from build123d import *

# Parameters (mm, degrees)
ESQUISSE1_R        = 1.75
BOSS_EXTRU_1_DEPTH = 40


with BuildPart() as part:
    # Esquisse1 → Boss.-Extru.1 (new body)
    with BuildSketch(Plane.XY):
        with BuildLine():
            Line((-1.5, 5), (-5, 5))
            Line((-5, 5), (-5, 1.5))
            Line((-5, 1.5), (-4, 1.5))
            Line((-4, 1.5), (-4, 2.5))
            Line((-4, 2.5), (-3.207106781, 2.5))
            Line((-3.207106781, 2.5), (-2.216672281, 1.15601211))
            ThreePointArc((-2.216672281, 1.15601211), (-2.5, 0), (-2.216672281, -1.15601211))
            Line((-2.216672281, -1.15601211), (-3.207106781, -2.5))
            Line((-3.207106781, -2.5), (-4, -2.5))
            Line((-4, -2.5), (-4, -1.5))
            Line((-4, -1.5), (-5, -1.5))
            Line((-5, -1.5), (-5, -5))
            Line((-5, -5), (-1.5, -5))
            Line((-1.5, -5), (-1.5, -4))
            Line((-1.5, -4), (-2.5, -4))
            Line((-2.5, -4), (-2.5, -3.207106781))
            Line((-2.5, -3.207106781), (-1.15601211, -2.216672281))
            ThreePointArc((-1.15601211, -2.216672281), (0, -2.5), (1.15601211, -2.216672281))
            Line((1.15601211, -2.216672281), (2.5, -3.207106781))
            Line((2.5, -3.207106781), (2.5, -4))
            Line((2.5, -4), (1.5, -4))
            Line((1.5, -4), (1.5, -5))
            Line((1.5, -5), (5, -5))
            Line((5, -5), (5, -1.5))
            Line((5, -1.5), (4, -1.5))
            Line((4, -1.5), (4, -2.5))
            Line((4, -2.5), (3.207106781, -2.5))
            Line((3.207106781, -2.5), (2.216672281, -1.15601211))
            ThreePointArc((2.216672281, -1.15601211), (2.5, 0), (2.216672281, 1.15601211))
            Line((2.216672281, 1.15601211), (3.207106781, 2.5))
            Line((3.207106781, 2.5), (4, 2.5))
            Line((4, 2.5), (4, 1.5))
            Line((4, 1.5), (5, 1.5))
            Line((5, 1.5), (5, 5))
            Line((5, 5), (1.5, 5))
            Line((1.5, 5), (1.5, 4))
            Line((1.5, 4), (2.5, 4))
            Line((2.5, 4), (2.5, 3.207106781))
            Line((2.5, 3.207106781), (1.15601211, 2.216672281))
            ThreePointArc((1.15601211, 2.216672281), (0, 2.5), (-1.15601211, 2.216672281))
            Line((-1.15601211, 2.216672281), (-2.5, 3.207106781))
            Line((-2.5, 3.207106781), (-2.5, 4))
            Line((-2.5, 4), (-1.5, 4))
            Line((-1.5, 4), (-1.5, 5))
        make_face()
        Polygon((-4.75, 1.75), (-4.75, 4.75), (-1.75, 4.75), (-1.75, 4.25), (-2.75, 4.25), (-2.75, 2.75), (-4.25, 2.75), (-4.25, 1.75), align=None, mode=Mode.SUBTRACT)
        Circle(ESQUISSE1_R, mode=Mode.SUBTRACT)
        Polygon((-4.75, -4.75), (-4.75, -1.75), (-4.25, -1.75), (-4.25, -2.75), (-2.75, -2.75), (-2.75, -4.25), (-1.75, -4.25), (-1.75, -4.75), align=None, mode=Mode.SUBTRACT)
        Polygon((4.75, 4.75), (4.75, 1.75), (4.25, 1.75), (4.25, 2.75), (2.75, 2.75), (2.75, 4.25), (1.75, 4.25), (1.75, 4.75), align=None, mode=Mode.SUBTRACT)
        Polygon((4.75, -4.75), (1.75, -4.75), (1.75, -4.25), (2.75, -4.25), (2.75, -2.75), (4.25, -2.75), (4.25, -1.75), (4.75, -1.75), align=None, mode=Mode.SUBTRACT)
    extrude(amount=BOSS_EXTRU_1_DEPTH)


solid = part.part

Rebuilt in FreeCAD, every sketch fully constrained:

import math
import FreeCAD as App
import Part
import Sketcher

V = App.Vector


def add_polygon(sketch, points):
    """Adds a closed chain of lines whose ends are joined by coincident constraints."""
    first, n = sketch.GeometryCount, len(points)
    for a, b in zip(points, points[1:] + points[:1]):
        sketch.addGeometry(Part.LineSegment(App.Vector(*a, 0), App.Vector(*b, 0)), False)
    for i in range(n):
        sketch.addConstraint(Sketcher.Constraint("Coincident", first + i, 2, first + (i + 1) % n, 1))

doc = App.newDocument("Part")
body = doc.addObject("PartDesign::Body", "Body")

# Sketch on XY plane
sketch1 = body.newObject("Sketcher::SketchObject", "Sketch")
sketch1.AttachmentSupport = (doc.getObject("XY_Plane"), [""])
sketch1.MapMode = "FlatFace"
sketch1.addGeometry(Part.LineSegment(V(-1.5, 5, 0), V(-5, 5, 0)), False)  # 0
sketch1.addGeometry(Part.LineSegment(V(-5, 5, 0), V(-5, 1.5, 0)), False)  # 1
sketch1.addGeometry(Part.LineSegment(V(-5, 1.5, 0), V(-4, 1.5, 0)), False)  # 2
sketch1.addGeometry(Part.LineSegment(V(-4, 1.5, 0), V(-4, 2.5, 0)), False)  # 3
sketch1.addGeometry(Part.LineSegment(V(-4, 2.5, 0), V(-3.2, 2.5, 0)), False)  # 4
sketch1.addGeometry(Part.LineSegment(V(-3.2, 2.5, 0), V(-2.2, 1.2, 0)), False)  # 5
sketch1.addGeometry(Part.ArcOfCircle(Part.Circle(V(0, 0, 0), V(0, 0, 1), 2.5), math.radians(152), math.radians(208)), False)  # 6
sketch1.addGeometry(Part.LineSegment(V(-2.2, -1.2, 0), V(-3.2, -2.5, 0)), False)  # 7
sketch1.addGeometry(Part.LineSegment(V(-3.2, -2.5, 0), V(-4, -2.5, 0)), False)  # 8
sketch1.addGeometry(Part.LineSegment(V(-4, -2.5, 0), V(-4, -1.5, 0)), False)  # 9
sketch1.addGeometry(Part.LineSegment(V(-4, -1.5, 0), V(-5, -1.5, 0)), False)  # 10
sketch1.addGeometry(Part.LineSegment(V(-5, -1.5, 0), V(-5, -5, 0)), False)  # 11
sketch1.addGeometry(Part.LineSegment(V(-5, -5, 0), V(-1.5, -5, 0)), False)  # 12
sketch1.addGeometry(Part.LineSegment(V(-1.5, -5, 0), V(-1.5, -4, 0)), False)  # 13
sketch1.addGeometry(Part.LineSegment(V(-1.5, -4, 0), V(-2.5, -4, 0)), False)  # 14
sketch1.addGeometry(Part.LineSegment(V(-2.5, -4, 0), V(-2.5, -3.2, 0)), False)  # 15
sketch1.addGeometry(Part.LineSegment(V(-2.5, -3.2, 0), V(-1.2, -2.2, 0)), False)  # 16
sketch1.addGeometry(Part.ArcOfCircle(Part.Circle(V(0, 0, 0), V(0, 0, 1), 2.5), math.radians(-118), math.radians(-62)), False)  # 17
sketch1.addGeometry(Part.LineSegment(V(1.2, -2.2, 0), V(2.5, -3.2, 0)), False)  # 18
sketch1.addGeometry(Part.LineSegment(V(2.5, -3.2, 0), V(2.5, -4, 0)), False)  # 19
sketch1.addGeometry(Part.LineSegment(V(2.5, -4, 0), V(1.5, -4, 0)), False)  # 20
sketch1.addGeometry(Part.LineSegment(V(1.5, -4, 0), V(1.5, -5, 0)), False)  # 21
sketch1.addGeometry(Part.LineSegment(V(1.5, -5, 0), V(5, -5, 0)), False)  # 22
sketch1.addGeometry(Part.LineSegment(V(5, -5, 0), V(5, -1.5, 0)), False)  # 23
sketch1.addGeometry(Part.LineSegment(V(5, -1.5, 0), V(4, -1.5, 0)), False)  # 24
sketch1.addGeometry(Part.LineSegment(V(4, -1.5, 0), V(4, -2.5, 0)), False)  # 25
sketch1.addGeometry(Part.LineSegment(V(4, -2.5, 0), V(3.2, -2.5, 0)), False)  # 26
sketch1.addGeometry(Part.LineSegment(V(3.2, -2.5, 0), V(2.2, -1.2, 0)), False)  # 27
sketch1.addGeometry(Part.ArcOfCircle(Part.Circle(V(0, 0, 0), V(0, 0, 1), 2.5), math.radians(-28), math.radians(28)), False)  # 28
sketch1.addGeometry(Part.LineSegment(V(2.2, 1.2, 0), V(3.2, 2.5, 0)), False)  # 29
sketch1.addGeometry(Part.LineSegment(V(3.2, 2.5, 0), V(4, 2.5, 0)), False)  # 30
sketch1.addGeometry(Part.LineSegment(V(4, 2.5, 0), V(4, 1.5, 0)), False)  # 31
sketch1.addGeometry(Part.LineSegment(V(4, 1.5, 0), V(5, 1.5, 0)), False)  # 32
sketch1.addGeometry(Part.LineSegment(V(5, 1.5, 0), V(5, 5, 0)), False)  # 33
sketch1.addGeometry(Part.LineSegment(V(5, 5, 0), V(1.5, 5, 0)), False)  # 34
sketch1.addGeometry(Part.LineSegment(V(1.5, 5, 0), V(1.5, 4, 0)), False)  # 35
sketch1.addGeometry(Part.LineSegment(V(1.5, 4, 0), V(2.5, 4, 0)), False)  # 36
sketch1.addGeometry(Part.LineSegment(V(2.5, 4, 0), V(2.5, 3.2, 0)), False)  # 37
sketch1.addGeometry(Part.LineSegment(V(2.5, 3.2, 0), V(1.2, 2.2, 0)), False)  # 38
sketch1.addGeometry(Part.ArcOfCircle(Part.Circle(V(0, 0, 0), V(0, 0, 1), 2.5), math.radians(62), math.radians(118)), False)  # 39
sketch1.addGeometry(Part.LineSegment(V(-1.2, 2.2, 0), V(-2.5, 3.2, 0)), False)  # 40
sketch1.addGeometry(Part.LineSegment(V(-2.5, 3.2, 0), V(-2.5, 4, 0)), False)  # 41
sketch1.addGeometry(Part.LineSegment(V(-2.5, 4, 0), V(-1.5, 4, 0)), False)  # 42
sketch1.addGeometry(Part.LineSegment(V(-1.5, 4, 0), V(-1.5, 5, 0)), False)  # 43
add_polygon(sketch1, [(-1.8, -4.8), (-4.8, -4.8), (-4.8, -1.8), (-4.2, -1.8), (-4.2, -2.8), (-2.8, -2.8), (-2.8, -4.2), (-1.8, -4.2)])  # lines 44-51
add_polygon(sketch1, [(4.8, -1.8), (4.8, -4.8), (1.8, -4.8), (1.8, -4.2), (2.8, -4.2), (2.8, -2.8), (4.2, -2.8), (4.2, -1.8)])  # lines 52-59
add_polygon(sketch1, [(-4.2, 1.8), (-4.8, 1.8), (-4.8, 4.8), (-1.8, 4.8), (-1.8, 4.2), (-2.8, 4.2), (-2.8, 2.8), (-4.2, 2.8)])  # lines 60-67
sketch1.addGeometry(Part.Circle(V(0, 0, 0), V(0, 0, 1), 1.8), False)  # 68
add_polygon(sketch1, [(1.8, 4.8), (4.8, 4.8), (4.8, 1.8), (4.2, 1.8), (4.2, 2.8), (2.8, 2.8), (2.8, 4.2), (1.8, 4.2)])  # lines 69-76
sketch1.addConstraint([
    Sketcher.Constraint("Coincident", 0, 2, 1, 1),
    Sketcher.Constraint("Coincident", 1, 2, 2, 1),
    Sketcher.Constraint("Coincident", 2, 2, 3, 1),
    Sketcher.Constraint("Coincident", 3, 2, 4, 1),
    Sketcher.Constraint("Coincident", 4, 2, 5, 1),
    Sketcher.Constraint("Coincident", 5, 2, 6, 1),
    Sketcher.Constraint("Coincident", 6, 2, 7, 1),
    Sketcher.Constraint("Coincident", 7, 2, 8, 1),
    Sketcher.Constraint("Coincident", 8, 2, 9, 1),
    Sketcher.Constraint("Coincident", 9, 2, 10, 1),
    Sketcher.Constraint("Coincident", 10, 2, 11, 1),
    Sketcher.Constraint("Coincident", 11, 2, 12, 1),
    Sketcher.Constraint("Coincident", 12, 2, 13, 1),
    Sketcher.Constraint("Coincident", 13, 2, 14, 1),
    Sketcher.Constraint("Coincident", 14, 2, 15, 1),
    Sketcher.Constraint("Coincident", 15, 2, 16, 1),
    Sketcher.Constraint("Coincident", 16, 2, 17, 1),
    Sketcher.Constraint("Coincident", 17, 2, 18, 1),
    Sketcher.Constraint("Coincident", 18, 2, 19, 1),
    Sketcher.Constraint("Coincident", 19, 2, 20, 1),
    Sketcher.Constraint("Coincident", 20, 2, 21, 1),
    Sketcher.Constraint("Coincident", 21, 2, 22, 1),
    Sketcher.Constraint("Coincident", 22, 2, 23, 1),
    Sketcher.Constraint("Coincident", 23, 2, 24, 1),
    Sketcher.Constraint("Coincident", 24, 2, 25, 1),
    Sketcher.Constraint("Coincident", 25, 2, 26, 1),
    Sketcher.Constraint("Coincident", 26, 2, 27, 1),
    Sketcher.Constraint("Coincident", 27, 2, 28, 1),
    Sketcher.Constraint("Coincident", 28, 2, 29, 1),
    Sketcher.Constraint("Coincident", 29, 2, 30, 1),
    Sketcher.Constraint("Coincident", 30, 2, 31, 1),
    Sketcher.Constraint("Coincident", 31, 2, 32, 1),
    Sketcher.Constraint("Coincident", 32, 2, 33, 1),
    Sketcher.Constraint("Coincident", 33, 2, 34, 1),
    Sketcher.Constraint("Coincident", 34, 2, 35, 1),
    Sketcher.Constraint("Coincident", 35, 2, 36, 1),
    Sketcher.Constraint("Coincident", 36, 2, 37, 1),
    Sketcher.Constraint("Coincident", 37, 2, 38, 1),
    Sketcher.Constraint("Coincident", 38, 2, 39, 1),
    Sketcher.Constraint("Coincident", 39, 2, 40, 1),
    Sketcher.Constraint("Coincident", 40, 2, 41, 1),
    Sketcher.Constraint("Coincident", 41, 2, 42, 1),
    Sketcher.Constraint("Coincident", 42, 2, 43, 1),
    Sketcher.Constraint("Coincident", 43, 2, 0, 1),
    Sketcher.Constraint("Horizontal", 0),
    Sketcher.Constraint("Vertical", 1),
    Sketcher.Constraint("Horizontal", 2),
    Sketcher.Constraint("Vertical", 3),
    Sketcher.Constraint("Horizontal", 4),
    Sketcher.Constraint("Horizontal", 8),
    Sketcher.Constraint("Vertical", 9),
    Sketcher.Constraint("Horizontal", 10),
    Sketcher.Constraint("Vertical", 11),
    Sketcher.Constraint("Horizontal", 12),
    Sketcher.Constraint("Vertical", 13),
    Sketcher.Constraint("Horizontal", 14),
    Sketcher.Constraint("Vertical", 15),
    Sketcher.Constraint("Vertical", 19),
    Sketcher.Constraint("Horizontal", 20),
    Sketcher.Constraint("Vertical", 21),
    Sketcher.Constraint("Horizontal", 22),
    Sketcher.Constraint("Vertical", 23),
    Sketcher.Constraint("Horizontal", 24),
    Sketcher.Constraint("Vertical", 25),
    Sketcher.Constraint("Horizontal", 26),
    Sketcher.Constraint("Horizontal", 30),
    Sketcher.Constraint("Vertical", 31),
    Sketcher.Constraint("Horizontal", 32),
    Sketcher.Constraint("Vertical", 33),
    Sketcher.Constraint("Horizontal", 34),
    Sketcher.Constraint("Vertical", 35),
    Sketcher.Constraint("Horizontal", 36),
    Sketcher.Constraint("Vertical", 37),
    Sketcher.Constraint("Vertical", 41),
    Sketcher.Constraint("Horizontal", 42),
    Sketcher.Constraint("Vertical", 43),
    Sketcher.Constraint("Horizontal", 44),
    Sketcher.Constraint("Vertical", 45),
    Sketcher.Constraint("Horizontal", 46),
    Sketcher.Constraint("Vertical", 47),
    Sketcher.Constraint("Horizontal", 48),
    Sketcher.Constraint("Vertical", 49),
    Sketcher.Constraint("Horizontal", 50),
    Sketcher.Constraint("Vertical", 51),
    Sketcher.Constraint("Vertical", 52),
    Sketcher.Constraint("Horizontal", 53),
    Sketcher.Constraint("Vertical", 54),
    Sketcher.Constraint("Horizontal", 55),
    Sketcher.Constraint("Vertical", 56),
    Sketcher.Constraint("Horizontal", 57),
    Sketcher.Constraint("Vertical", 58),
    Sketcher.Constraint("Horizontal", 59),
    Sketcher.Constraint("Horizontal", 60),
    Sketcher.Constraint("Vertical", 61),
    Sketcher.Constraint("Horizontal", 62),
    Sketcher.Constraint("Vertical", 63),
    Sketcher.Constraint("Horizontal", 64),
    Sketcher.Constraint("Vertical", 65),
    Sketcher.Constraint("Horizontal", 66),
    Sketcher.Constraint("Vertical", 67),
    Sketcher.Constraint("Horizontal", 69),
    Sketcher.Constraint("Vertical", 70),
    Sketcher.Constraint("Horizontal", 71),
    Sketcher.Constraint("Vertical", 72),
    Sketcher.Constraint("Horizontal", 73),
    Sketcher.Constraint("Vertical", 74),
    Sketcher.Constraint("Horizontal", 75),
    Sketcher.Constraint("Vertical", 76),
    Sketcher.Constraint("Coincident", 6, 3, -1, 1),
    Sketcher.Constraint("Coincident", 17, 3, -1, 1),
    Sketcher.Constraint("Coincident", 28, 3, -1, 1),
    Sketcher.Constraint("Coincident", 39, 3, -1, 1),
    Sketcher.Constraint("Coincident", 68, 3, -1, 1),
    Sketcher.Constraint("Equal", 6, 17),
    Sketcher.Constraint("Equal", 17, 28),
    Sketcher.Constraint("Equal", 28, 39),
    Sketcher.Constraint("Symmetric", 0, 2, 22, 2, -1, 1),
    Sketcher.Constraint("Symmetric", 2, 2, 24, 2, -1, 1),
    Sketcher.Constraint("Symmetric", 4, 2, 26, 2, -1, 1),
    Sketcher.Constraint("Symmetric", 7, 2, 29, 2, -1, 1),
    Sketcher.Constraint("Symmetric", 9, 2, 31, 2, -1, 1),
    Sketcher.Constraint("Symmetric", 11, 2, 33, 2, -1, 1),
    Sketcher.Constraint("Symmetric", 13, 2, 35, 2, -1, 1),
    Sketcher.Constraint("Symmetric", 15, 2, 37, 2, -1, 1),
    Sketcher.Constraint("Symmetric", 18, 2, 40, 2, -1, 1),
    Sketcher.Constraint("Symmetric", 20, 2, 42, 2, -1, 1),
    Sketcher.Constraint("Symmetric", 59, 2, 60, 2, -1, 1),
    Sketcher.Constraint("Symmetric", 53, 2, 62, 2, -1, 1),
    Sketcher.Constraint("Symmetric", 55, 2, 64, 2, -1, 1),
    Sketcher.Constraint("Symmetric", 57, 2, 66, 2, -1, 1),
    Sketcher.Constraint("Symmetric", 44, 2, 69, 2, -1, 1),
    Sketcher.Constraint("Symmetric", 46, 2, 71, 2, -1, 1),
    Sketcher.Constraint("Symmetric", 48, 2, 73, 2, -1, 1),
    Sketcher.Constraint("Symmetric", 50, 2, 75, 2, -1, 1),
    Sketcher.Constraint("Symmetric", 15, 2, 18, 2, -2),
    Sketcher.Constraint("Symmetric", 13, 2, 20, 2, -2),
    Sketcher.Constraint("Symmetric", 11, 2, 22, 2, -2),
    Sketcher.Constraint("Symmetric", 9, 2, 24, 2, -2),
    Sketcher.Constraint("Symmetric", 7, 2, 26, 2, -2),
    Sketcher.Constraint("Symmetric", 44, 2, 52, 2, -2),
    Sketcher.Constraint("Symmetric", 50, 2, 54, 2, -2),
    Sketcher.Constraint("Symmetric", 48, 2, 56, 2, -2),
    Sketcher.Constraint("Symmetric", 46, 2, 58, 2, -2),
    Sketcher.Constraint("Perpendicular", 5, 16),
    Sketcher.Constraint("Perpendicular", 7, 18),
    Sketcher.Constraint("Perpendicular", 16, 27),
    Sketcher.Constraint("Perpendicular", 18, 29),
    Sketcher.Constraint("Perpendicular", 27, 38),
    Sketcher.Constraint("Perpendicular", 29, 40),
    Sketcher.Constraint("Horizontal", 16, 2, 17, 2),
    Sketcher.Constraint("Equal", 10, 14),
    Sketcher.Constraint("Equal", 42, 50),
    Sketcher.Constraint("Equal", 34, 1),
    Sketcher.Constraint("Equal", 75, 3),
    Sketcher.Constraint("Equal", 9, 13),
    Sketcher.Constraint("Equal", 30, 15),
    Sketcher.Constraint("Equal", 69, 45),
    Sketcher.Constraint("Equal", 43, 47),
    Sketcher.Constraint("Equal", 73, 49),
    Sketcher.Constraint("Equal", 7, 16),
    Sketcher.Constraint("Diameter", 68, 3.5),
    Sketcher.Constraint("Radius", 6, 2.5),
    Sketcher.Constraint("DistanceX", 2, 1, 2, 2, 1.0),
    Sketcher.Constraint("DistanceX", 44, 2, 44, 1, 3.0),
    Sketcher.Constraint("DistanceX", 0, 2, 0, 1, 3.5),
    Sketcher.Constraint("DistanceX", 46, 1, 46, 2, 0.5),
    Sketcher.Constraint("DistanceX", 0, 2, -1, 1, 5.0),
    Sketcher.Constraint("DistanceX", 44, 2, -1, 1, 4.75),
    Sketcher.Constraint("DistanceY", 44, 2, -1, 1, 4.75),
    Sketcher.Constraint("Distance", 5, 1.66951),
    Sketcher.Constraint("DistanceX", 4, 1, 4, 2, 0.792893),
])
pad1 = body.newObject("PartDesign::Pad", "Pad")
pad1.Profile = sketch1
pad1.Length = 40

doc.recompute()
